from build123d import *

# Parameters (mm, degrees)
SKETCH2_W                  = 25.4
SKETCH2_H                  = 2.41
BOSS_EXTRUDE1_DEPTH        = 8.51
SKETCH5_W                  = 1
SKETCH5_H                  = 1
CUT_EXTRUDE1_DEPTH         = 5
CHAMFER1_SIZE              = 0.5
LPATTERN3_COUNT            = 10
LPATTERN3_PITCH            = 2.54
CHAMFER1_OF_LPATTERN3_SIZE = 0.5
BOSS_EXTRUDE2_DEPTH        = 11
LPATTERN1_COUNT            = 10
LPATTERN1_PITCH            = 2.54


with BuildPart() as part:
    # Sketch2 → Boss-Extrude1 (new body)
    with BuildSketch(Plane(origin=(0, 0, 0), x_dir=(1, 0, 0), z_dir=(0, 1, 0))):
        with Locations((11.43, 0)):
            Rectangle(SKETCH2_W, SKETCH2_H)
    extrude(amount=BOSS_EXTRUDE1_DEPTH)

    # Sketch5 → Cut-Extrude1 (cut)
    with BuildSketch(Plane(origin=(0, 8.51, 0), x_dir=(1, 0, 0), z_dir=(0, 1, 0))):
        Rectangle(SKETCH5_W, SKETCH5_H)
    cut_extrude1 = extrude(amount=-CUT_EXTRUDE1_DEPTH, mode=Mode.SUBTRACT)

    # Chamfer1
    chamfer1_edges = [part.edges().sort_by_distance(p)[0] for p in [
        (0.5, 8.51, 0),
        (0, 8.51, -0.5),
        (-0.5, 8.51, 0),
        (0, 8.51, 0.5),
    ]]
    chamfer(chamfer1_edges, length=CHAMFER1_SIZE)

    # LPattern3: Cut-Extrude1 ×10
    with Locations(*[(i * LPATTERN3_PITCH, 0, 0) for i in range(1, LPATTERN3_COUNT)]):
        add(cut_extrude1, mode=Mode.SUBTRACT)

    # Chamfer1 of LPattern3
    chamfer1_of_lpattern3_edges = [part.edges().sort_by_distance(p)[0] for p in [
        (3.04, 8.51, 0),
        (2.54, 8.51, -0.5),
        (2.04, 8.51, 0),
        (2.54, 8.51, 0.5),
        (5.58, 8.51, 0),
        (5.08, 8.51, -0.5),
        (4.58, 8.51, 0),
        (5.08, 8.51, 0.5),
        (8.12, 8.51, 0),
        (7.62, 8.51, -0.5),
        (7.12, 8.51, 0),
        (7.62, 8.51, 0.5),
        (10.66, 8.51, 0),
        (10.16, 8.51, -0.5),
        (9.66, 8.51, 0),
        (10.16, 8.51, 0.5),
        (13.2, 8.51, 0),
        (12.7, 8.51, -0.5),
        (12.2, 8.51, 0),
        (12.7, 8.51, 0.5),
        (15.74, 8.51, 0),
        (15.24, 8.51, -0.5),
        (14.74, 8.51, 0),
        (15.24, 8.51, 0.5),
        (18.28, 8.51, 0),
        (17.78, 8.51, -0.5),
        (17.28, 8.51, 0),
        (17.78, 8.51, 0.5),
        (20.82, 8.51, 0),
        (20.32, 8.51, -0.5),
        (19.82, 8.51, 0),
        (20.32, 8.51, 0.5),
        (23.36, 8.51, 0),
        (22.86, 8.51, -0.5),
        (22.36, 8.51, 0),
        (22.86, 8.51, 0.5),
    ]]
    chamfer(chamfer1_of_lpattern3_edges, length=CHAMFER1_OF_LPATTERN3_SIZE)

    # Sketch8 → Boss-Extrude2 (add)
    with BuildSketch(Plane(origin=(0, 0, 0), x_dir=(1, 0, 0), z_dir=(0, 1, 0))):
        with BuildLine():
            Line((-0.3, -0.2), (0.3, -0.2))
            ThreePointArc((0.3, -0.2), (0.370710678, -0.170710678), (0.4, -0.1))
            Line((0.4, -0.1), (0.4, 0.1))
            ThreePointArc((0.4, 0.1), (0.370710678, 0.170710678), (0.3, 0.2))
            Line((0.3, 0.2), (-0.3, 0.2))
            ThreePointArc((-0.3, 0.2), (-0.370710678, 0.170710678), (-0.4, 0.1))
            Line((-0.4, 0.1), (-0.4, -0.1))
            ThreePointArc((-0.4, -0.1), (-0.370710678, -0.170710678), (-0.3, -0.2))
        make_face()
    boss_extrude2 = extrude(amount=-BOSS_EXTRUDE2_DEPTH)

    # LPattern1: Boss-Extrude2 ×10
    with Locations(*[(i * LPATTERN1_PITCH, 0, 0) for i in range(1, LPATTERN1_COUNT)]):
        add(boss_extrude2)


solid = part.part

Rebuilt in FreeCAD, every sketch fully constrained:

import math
import FreeCAD as App
import Part
import Sketcher
from FreeCAD import Vector
Q = App.Units.Quantity


def edges_at(feature, points):
    """Names of the edges that pass closest to the given points."""
    edges = feature.Shape.Edges
    near = lambda p: min(range(len(edges)), key=lambda i: edges[i].distToShape(Part.Vertex(*p))[0])
    return sorted({f"Edge{near(p) + 1}" for p in points})

doc = App.newDocument("Part")
params = doc.addObject("Spreadsheet::Sheet", "Params")
for row, (alias, value) in enumerate([
    ("sketch1_width", "25.4 mm"),
    ("sketch1_height", "2.41 mm"),
    ("pad1_length", "8.51 mm"),
    ("sketch2_width", "1 mm"),
    ("pocket1_length", "5 mm"),
    ("chamfer_size", "0.5 mm"),
    ("linearpattern_pitch", "2.54 mm"),
    ("chamfer2_size", "0.5 mm"),
    ("sketch3_radius", "0.1 mm"),
    ("sketch3_width", "0.6 mm"),
    ("sketch3_height", "0.2 mm"),
    ("pad2_length", "11 mm"),
    ("linearpattern2_pitch", "2.54 mm"),
], start=1):
    params.set(f"A{row}", alias)
    params.set(f"B{row}", "=" + value)
    params.setAlias(f"B{row}", alias)

body = doc.addObject("PartDesign::Body", "Body")

sketch1 = body.newObject("Sketcher::SketchObject", "Sketch")
sketch1.AttachmentSupport = (doc.getObject("XZ_Plane"), [""])
sketch1.MapMode = "FlatFace"
sketch1.addGeometry(Part.LineSegment(Vector(-1.27, -1.205, 0), Vector(-1.27, 1.205, 0)), False)
sketch1.addGeometry(Part.LineSegment(Vector(-1.27, 1.205, 0), Vector(24.13, 1.205, 0)), False)
sketch1.addGeometry(Part.LineSegment(Vector(24.13, 1.205, 0), Vector(24.13, -1.205, 0)), False)
sketch1.addGeometry(Part.LineSegment(Vector(24.13, -1.205, 0), Vector(-1.27, -1.205, 0)), False)
sketch1.addConstraint(Sketcher.Constraint("Coincident", 0, 2, 1, 1))
sketch1.addConstraint(Sketcher.Constraint("Coincident", 1, 2, 2, 1))
sketch1.addConstraint(Sketcher.Constraint("Coincident", 2, 2, 3, 1))
sketch1.addConstraint(Sketcher.Constraint("Coincident", 3, 2, 0, 1))
sketch1.addConstraint(Sketcher.Constraint("Vertical", 0))
sketch1.addConstraint(Sketcher.Constraint("Horizontal", 1))
sketch1.addConstraint(Sketcher.Constraint("Vertical", 2))
sketch1.addConstraint(Sketcher.Constraint("Horizontal", 3))
sketch1.addConstraint(Sketcher.Constraint("DistanceX", 1, 1, 1, 2, Q("25.4 mm")))
sketch1.addConstraint(Sketcher.Constraint("DistanceY", 0, 1, 0, 2, Q("2.41 mm")))
sketch1.addConstraint(Sketcher.Constraint("DistanceX", 0, 2, -1, 1, Q("1.27 mm")))
sketch1.addConstraint(Sketcher.Constraint("DistanceY", -1, 1, 0, 2, Q("1.205 mm")))
sketch1.setExpression("Constraints[8]", "Params.sketch1_width")
sketch1.setExpression("Constraints[9]", "Params.sketch1_height")
pad1 = body.newObject("PartDesign::Pad", "Pad")
pad1.Profile = sketch1
pad1.setExpression("Length", "Params.pad1_length")
pad1.Reversed = True

sketch2 = body.newObject("Sketcher::SketchObject", "Sketch001")
sketch2.AttachmentSupport = (doc.getObject("XZ_Plane"), [""])
sketch2.MapMode = "FlatFace"
sketch2.AttachmentOffset = App.Placement(Vector(0, 0, -8.51), App.Rotation())
sketch2.addGeometry(Part.LineSegment(Vector(-0.5, -0.5, 0), Vector(-0.5, 0.5, 0)), False)
sketch2.addGeometry(Part.LineSegment(Vector(-0.5, 0.5, 0), Vector(0.5, 0.5, 0)), False)
sketch2.addGeometry(Part.LineSegment(Vector(0.5, 0.5, 0), Vector(0.5, -0.5, 0)), False)
sketch2.addGeometry(Part.LineSegment(Vector(0.5, -0.5, 0), Vector(-0.5, -0.5, 0)), False)
sketch2.addConstraint(Sketcher.Constraint("Coincident", 0, 2, 1, 1))
sketch2.addConstraint(Sketcher.Constraint("Coincident", 1, 2, 2, 1))
sketch2.addConstraint(Sketcher.Constraint("Coincident", 2, 2, 3, 1))
sketch2.addConstraint(Sketcher.Constraint("Coincident", 3, 2, 0, 1))
sketch2.addConstraint(Sketcher.Constraint("Vertical", 0))
sketch2.addConstraint(Sketcher.Constraint("Horizontal", 1))
sketch2.addConstraint(Sketcher.Constraint("Vertical", 2))
sketch2.addConstraint(Sketcher.Constraint("Horizontal", 3))
sketch2.addConstraint(Sketcher.Constraint("Symmetric", 0, 2, 2, 2, -1, 1))
sketch2.addConstraint(Sketcher.Constraint("Equal", 3, 0))
sketch2.addConstraint(Sketcher.Constraint("DistanceX", 1, 1, 1, 2, Q("1 mm")))
sketch2.setExpression("Constraints[10]", "Params.sketch2_width")
pocket1 = body.newObject("PartDesign::Pocket", "Pocket")
pocket1.Profile = sketch2
pocket1.setExpression("Length", "Params.pocket1_length")
pocket1.Reversed = True
doc.recompute()

chamfer = body.newObject("PartDesign::Chamfer", "Chamfer")
chamfer.Base = (pocket1, edges_at(pocket1, [
    (0.5, 8.51, 0),
    (0, 8.51, -0.5),
    (-0.5, 8.51, 0),
    (0, 8.51, 0.5),
]))
chamfer.setExpression("Size", "Params.chamfer_size")
doc.recompute()

linearpattern = body.newObject("PartDesign::LinearPattern", "LinearPattern")
linearpattern.Originals = [pocket1]
linearpattern.Direction = (doc.getObject("X_Axis"), [""])
linearpattern.Mode = "offset"
linearpattern.setExpression("Offset", "Params.linearpattern_pitch")
linearpattern.Occurrences = 10
body.Tip = linearpattern
doc.recompute()

chamfer2 = body.newObject("PartDesign::Chamfer", "Chamfer001")
chamfer2.Base = (linearpattern, edges_at(linearpattern, [
    (3.04, 8.51, 0),
    (2.54, 8.51, -0.5),
    (2.04, 8.51, 0),
    (2.54, 8.51, 0.5),
    (5.58, 8.51, 0),
    (5.08, 8.51, -0.5),
    (4.58, 8.51, 0),
    (5.08, 8.51, 0.5),
    (8.12, 8.51, 0),
    (7.62, 8.51, -0.5),
    (7.12, 8.51, 0),
    (7.62, 8.51, 0.5),
    (10.66, 8.51, 0),
    (10.16, 8.51, -0.5),
    (9.66, 8.51, 0),
    (10.16, 8.51, 0.5),
    (13.2, 8.51, 0),
    (12.7, 8.51, -0.5),
    (12.2, 8.51, 0),
    (12.7, 8.51, 0.5),
    (15.74, 8.51, 0),
    (15.24, 8.51, -0.5),
    (14.74, 8.51, 0),
    (15.24, 8.51, 0.5),
    (18.28, 8.51, 0),
    (17.78, 8.51, -0.5),
    (17.28, 8.51, 0),
    (17.78, 8.51, 0.5),
    (20.82, 8.51, 0),
    (20.32, 8.51, -0.5),
    (19.82, 8.51, 0),
    (20.32, 8.51, 0.5),
    (23.36, 8.51, 0),
    (22.86, 8.51, -0.5),
    (22.36, 8.51, 0),
    (22.86, 8.51, 0.5),
]))
chamfer2.setExpression("Size", "Params.chamfer2_size")

sketch3 = body.newObject("Sketcher::SketchObject", "Sketch002")
sketch3.AttachmentSupport = (doc.getObject("XZ_Plane"), [""])
sketch3.MapMode = "FlatFace"
sketch3.addGeometry(Part.LineSegment(Vector(-0.3, 0.2, 0), Vector(0.3, 0.2, 0)), False)
sketch3.addGeometry(Part.ArcOfCircle(Part.Circle(Vector(0.3, 0.1, 0), Vector(0, 0, 1), 0.1), math.radians(0), math.radians(90)), False)
sketch3.addGeometry(Part.LineSegment(Vector(0.4, 0.1, 0), Vector(0.4, -0.1, 0)), False)
sketch3.addGeometry(Part.ArcOfCircle(Part.Circle(Vector(0.3, -0.1, 0), Vector(0, 0, 1), 0.1), math.radians(-90), math.radians(0)), False)
sketch3.addGeometry(Part.LineSegment(Vector(0.3, -0.2, 0), Vector(-0.3, -0.2, 0)), False)
sketch3.addGeometry(Part.ArcOfCircle(Part.Circle(Vector(-0.3, -0.1, 0), Vector(0, 0, 1), 0.1), math.radians(180), math.radians(270)), False)
sketch3.addGeometry(Part.LineSegment(Vector(-0.4, -0.1, 0), Vector(-0.4, 0.1, 0)), False)
sketch3.addGeometry(Part.ArcOfCircle(Part.Circle(Vector(-0.3, 0.1, 0), Vector(0, 0, 1), 0.1), math.radians(90), math.radians(180)), False)
sketch3.addConstraint(Sketcher.Constraint("Tangent", 0, 2, 1, 2))
sketch3.addConstraint(Sketcher.Constraint("Tangent", 1, 1, 2, 1))
sketch3.addConstraint(Sketcher.Constraint("Tangent", 2, 2, 3, 2))
sketch3.addConstraint(Sketcher.Constraint("Tangent", 3, 1, 4, 1))
sketch3.addConstraint(Sketcher.Constraint("Tangent", 4, 2, 5, 2))
sketch3.addConstraint(Sketcher.Constraint("Tangent", 5, 1, 6, 1))
sketch3.addConstraint(Sketcher.Constraint("Tangent", 6, 2, 7, 2))
sketch3.addConstraint(Sketcher.Constraint("Tangent", 7, 1, 0, 1))
sketch3.addConstraint(Sketcher.Constraint("Horizontal", 0))
sketch3.addConstraint(Sketcher.Constraint("Vertical", 2))
sketch3.addConstraint(Sketcher.Constraint("Horizontal", 4))
sketch3.addConstraint(Sketcher.Constraint("Vertical", 6))
sketch3.addConstraint(Sketcher.Constraint("Equal", 1, 3))
sketch3.addConstraint(Sketcher.Constraint("Equal", 3, 5))
sketch3.addConstraint(Sketcher.Constraint("Equal", 5, 7))
sketch3.addConstraint(Sketcher.Constraint("Symmetric", 1, 3, 5, 3, -1, 1))
sketch3.addConstraint(Sketcher.Constraint("Radius", 1, Q("0.1 mm")))
sketch3.addConstraint(Sketcher.Constraint("DistanceX", 0, 1, 0, 2, Q("0.6 mm")))
sketch3.addConstraint(Sketcher.Constraint("DistanceY", 2, 2, 2, 1, Q("0.2 mm")))
sketch3.setExpression("Constraints[16]", "Params.sketch3_radius")
sketch3.setExpression("Constraints[17]", "Params.sketch3_width")
sketch3.setExpression("Constraints[18]", "Params.sketch3_height")
pad2 = body.newObject("PartDesign::Pad", "Pad001")
pad2.Profile = sketch3
pad2.setExpression("Length", "Params.pad2_length")
doc.recompute()

linearpattern2 = body.newObject("PartDesign::LinearPattern", "LinearPattern001")
linearpattern2.Originals = [pad2]
linearpattern2.Direction = (doc.getObject("X_Axis"), [""])
linearpattern2.Mode = "offset"
linearpattern2.setExpression("Offset", "Params.linearpattern2_pitch")
linearpattern2.Occurrences = 10
body.Tip = linearpattern2

doc.recompute()
